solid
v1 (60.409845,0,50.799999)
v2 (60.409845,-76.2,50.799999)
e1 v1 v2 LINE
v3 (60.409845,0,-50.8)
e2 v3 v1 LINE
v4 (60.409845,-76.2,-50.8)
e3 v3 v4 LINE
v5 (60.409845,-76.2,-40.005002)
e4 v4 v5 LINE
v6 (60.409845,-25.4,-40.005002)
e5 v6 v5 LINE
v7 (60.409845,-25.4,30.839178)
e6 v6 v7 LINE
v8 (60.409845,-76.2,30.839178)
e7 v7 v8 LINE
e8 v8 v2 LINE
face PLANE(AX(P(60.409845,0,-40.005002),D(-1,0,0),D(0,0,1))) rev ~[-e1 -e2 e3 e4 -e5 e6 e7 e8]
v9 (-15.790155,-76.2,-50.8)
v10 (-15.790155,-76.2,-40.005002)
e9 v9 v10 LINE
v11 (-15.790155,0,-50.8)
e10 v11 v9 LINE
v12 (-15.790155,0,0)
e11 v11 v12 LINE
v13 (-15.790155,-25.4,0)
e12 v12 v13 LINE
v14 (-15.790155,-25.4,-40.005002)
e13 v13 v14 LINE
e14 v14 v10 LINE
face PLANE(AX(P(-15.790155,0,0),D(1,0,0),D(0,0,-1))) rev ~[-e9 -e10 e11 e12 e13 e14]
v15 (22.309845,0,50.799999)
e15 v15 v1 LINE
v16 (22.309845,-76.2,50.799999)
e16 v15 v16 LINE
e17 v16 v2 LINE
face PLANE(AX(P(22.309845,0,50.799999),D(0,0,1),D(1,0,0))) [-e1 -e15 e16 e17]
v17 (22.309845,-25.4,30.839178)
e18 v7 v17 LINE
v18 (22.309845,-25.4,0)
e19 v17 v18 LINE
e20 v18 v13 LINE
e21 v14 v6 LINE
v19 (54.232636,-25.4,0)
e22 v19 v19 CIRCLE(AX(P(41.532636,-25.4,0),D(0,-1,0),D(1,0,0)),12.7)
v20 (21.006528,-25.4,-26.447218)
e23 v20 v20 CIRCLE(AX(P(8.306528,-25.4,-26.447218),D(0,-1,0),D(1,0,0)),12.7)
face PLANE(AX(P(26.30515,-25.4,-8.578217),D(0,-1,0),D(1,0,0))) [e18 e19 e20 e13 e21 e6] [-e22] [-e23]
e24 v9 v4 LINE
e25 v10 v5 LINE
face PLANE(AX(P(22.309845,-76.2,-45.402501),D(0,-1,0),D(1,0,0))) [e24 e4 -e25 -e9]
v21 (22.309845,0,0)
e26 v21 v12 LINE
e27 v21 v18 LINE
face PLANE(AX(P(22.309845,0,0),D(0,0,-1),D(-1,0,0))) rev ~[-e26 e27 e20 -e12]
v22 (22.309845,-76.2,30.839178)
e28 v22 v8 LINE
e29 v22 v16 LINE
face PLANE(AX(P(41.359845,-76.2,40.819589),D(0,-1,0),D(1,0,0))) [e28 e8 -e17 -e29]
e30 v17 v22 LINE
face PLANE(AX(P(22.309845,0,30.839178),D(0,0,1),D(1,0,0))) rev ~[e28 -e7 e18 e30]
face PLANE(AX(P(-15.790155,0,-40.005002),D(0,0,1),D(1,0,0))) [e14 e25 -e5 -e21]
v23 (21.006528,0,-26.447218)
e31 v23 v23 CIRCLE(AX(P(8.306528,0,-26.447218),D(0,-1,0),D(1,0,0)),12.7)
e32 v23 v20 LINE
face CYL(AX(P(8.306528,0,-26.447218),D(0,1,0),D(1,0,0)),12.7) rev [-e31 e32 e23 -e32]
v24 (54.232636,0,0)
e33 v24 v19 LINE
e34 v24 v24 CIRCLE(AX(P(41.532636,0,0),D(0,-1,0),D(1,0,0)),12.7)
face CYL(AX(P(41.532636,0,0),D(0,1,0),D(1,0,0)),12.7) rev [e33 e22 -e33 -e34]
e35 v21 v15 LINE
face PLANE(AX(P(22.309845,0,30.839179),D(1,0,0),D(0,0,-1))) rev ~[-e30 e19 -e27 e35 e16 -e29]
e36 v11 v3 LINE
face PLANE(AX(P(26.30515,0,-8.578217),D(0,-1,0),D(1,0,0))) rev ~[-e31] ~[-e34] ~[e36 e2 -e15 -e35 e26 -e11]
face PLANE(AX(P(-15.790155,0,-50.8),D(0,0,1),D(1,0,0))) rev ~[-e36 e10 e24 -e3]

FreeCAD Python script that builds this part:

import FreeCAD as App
import Part
import Sketcher
from FreeCAD import Vector
Q = App.Units.Quantity

doc = App.newDocument("Part")
body = doc.addObject("PartDesign::Body", "Body")

# Sketch on XZ plane
sketch1 = body.newObject("Sketcher::SketchObject", "Sketch")
sketch1.AttachmentSupport = (doc.getObject("XZ_Plane"), [""])
sketch1.MapMode = "FlatFace"
sketch1.addGeometry(Part.LineSegment(Vector(60.409845, 30.839179, 0), Vector(22.309845, 30.839179, 0)), False)
sketch1.addGeometry(Part.LineSegment(Vector(22.309845, 30.839179, 0), Vector(22.309845, 0, 0)), False)
sketch1.addGeometry(Part.LineSegment(Vector(22.309845, 0, 0), Vector(-15.790155, 0, 0)), False)
sketch1.addGeometry(Part.LineSegment(Vector(-15.790155, 0, 0), Vector(-15.790155, -40.005002, 0)), False)
sketch1.addGeometry(Part.LineSegment(Vector(-15.790155, -40.005002, 0), Vector(60.409845, -40.005002, 0)), False)
sketch1.addGeometry(Part.LineSegment(Vector(60.409845, -40.005002, 0), Vector(60.409845, 30.839179, 0)), False)
sketch1.addGeometry(Part.Circle(Vector(8.306528, -26.447218, 0), Vector(0, 0, 1), 12.7), False)
sketch1.addGeometry(Part.Circle(Vector(41.532636, 0, 0), Vector(0, 0, 1), 12.7), False)
sketch1.addConstraint(Sketcher.Constraint("Coincident", 0, 2, 1, 1))
sketch1.addConstraint(Sketcher.Constraint("Coincident", 1, 2, 2, 1))
sketch1.addConstraint(Sketcher.Constraint("Coincident", 2, 2, 3, 1))
sketch1.addConstraint(Sketcher.Constraint("Coincident", 3, 2, 4, 1))
sketch1.addConstraint(Sketcher.Constraint("Coincident", 4, 2, 5, 1))
sketch1.addConstraint(Sketcher.Constraint("Coincident", 5, 2, 0, 1))
sketch1.addConstraint(Sketcher.Constraint("Horizontal", 0))
sketch1.addConstraint(Sketcher.Constraint("Vertical", 1))
sketch1.addConstraint(Sketcher.Constraint("Horizontal", 2))
sketch1.addConstraint(Sketcher.Constraint("Vertical", 3))
sketch1.addConstraint(Sketcher.Constraint("Horizontal", 4))
sketch1.addConstraint(Sketcher.Constraint("Vertical", 5))
sketch1.addConstraint(Sketcher.Constraint("Equal", 6, 7))
sketch1.addConstraint(Sketcher.Constraint("PointOnObject", 7, 3, -1))
sketch1.addConstraint(Sketcher.Constraint("PointOnObject", 1, 2, -1))
sketch1.addConstraint(Sketcher.Constraint("Equal", 0, 2))
sketch1.addConstraint(Sketcher.Constraint("Diameter", 6, Q("1 in")))
sketch1.addConstraint(Sketcher.Constraint("DistanceX", 4, 1, 4, 2, Q("3 in")))
sketch1.addConstraint(Sketcher.Constraint("DistanceY", 3, 2, 3, 1, Q("1.5750001 in")))
sketch1.addConstraint(Sketcher.Constraint("DistanceY", 1, 2, 1, 1, 30.839179))
sketch1.addConstraint(Sketcher.Constraint("DistanceX", 0, 2, 7, 3, 19.222791))
sketch1.addConstraint(Sketcher.Constraint("DistanceX", -1, 1, 6, 3, 8.306528))
sketch1.addConstraint(Sketcher.Constraint("DistanceY", 6, 3, -1, 1, 26.447218))
sketch1.addConstraint(Sketcher.Constraint("DistanceX", -1, 1, 7, 3, 41.532636))
pad1 = body.newObject("PartDesign::Pad", "Pad")
pad1.Profile = sketch1
pad1.Length = Q("1 in")

# Sketch on XZ plane
sketch2 = body.newObject("Sketcher::SketchObject", "Sketch001")
sketch2.AttachmentSupport = (doc.getObject("XZ_Plane"), [""])
sketch2.MapMode = "FlatFace"
sketch2.addGeometry(Part.LineSegment(Vector(22.309845, 50.799999, 0), Vector(22.309845, 30.839178, 0)), False)
sketch2.addGeometry(Part.LineSegment(Vector(22.309845, 30.839178, 0), Vector(60.409845, 30.839178, 0)), False)
sketch2.addGeometry(Part.LineSegment(Vector(60.409845, 30.839178, 0), Vector(60.409845, 50.799999, 0)), False)
sketch2.addGeometry(Part.LineSegment(Vector(60.409845, 50.799999, 0), Vector(22.309845, 50.799999, 0)), False)
sketch2.addGeometry(Part.LineSegment(Vector(-15.790155, -40.005002, 0), Vector(-15.790155, -50.8, 0)), False)
sketch2.addGeometry(Part.LineSegment(Vector(-15.790155, -50.8, 0), Vector(60.409845, -50.8, 0)), False)
sketch2.addGeometry(Part.LineSegment(Vector(60.409845, -50.8, 0), Vector(60.409845, -40.005002, 0)), False)
sketch2.addGeometry(Part.LineSegment(Vector(60.409845, -40.005002, 0), Vector(-15.790155, -40.005002, 0)), False)
sketch2.addConstraint(Sketcher.Constraint("Coincident", 0, 2, 1, 1))
sketch2.addConstraint(Sketcher.Constraint("Coincident", 1, 2, 2, 1))
sketch2.addConstraint(Sketcher.Constraint("Coincident", 2, 2, 3, 1))
sketch2.addConstraint(Sketcher.Constraint("Coincident", 3, 2, 0, 1))
sketch2.addConstraint(Sketcher.Constraint("Coincident", 4, 2, 5, 1))
sketch2.addConstraint(Sketcher.Constraint("Coincident", 5, 2, 6, 1))
sketch2.addConstraint(Sketcher.Constraint("Coincident", 6, 2, 7, 1))
sketch2.addConstraint(Sketcher.Constraint("Coincident", 7, 2, 4, 1))
sketch2.addConstraint(Sketcher.Constraint("Vertical", 0))
sketch2.addConstraint(Sketcher.Constraint("Horizontal", 1))
sketch2.addConstraint(Sketcher.Constraint("Vertical", 2))
sketch2.addConstraint(Sketcher.Constraint("Horizontal", 3))
sketch2.addConstraint(Sketcher.Constraint("Vertical", 4))
sketch2.addConstraint(Sketcher.Constraint("Horizontal", 5))
sketch2.addConstraint(Sketcher.Constraint("Vertical", 6))
sketch2.addConstraint(Sketcher.Constraint("Horizontal", 7))
sketch2.addConstraint(Sketcher.Constraint("Symmetric", 2, 2, 5, 2, -1))
sketch2.addConstraint(Sketcher.Constraint("DistanceX", 5, 1, 5, 2, Q("3 in")))
sketch2.addConstraint(Sketcher.Constraint("DistanceX", 1, 1, 1, 2, Q("1.5 in")))
sketch2.addConstraint(Sketcher.Constraint("DistanceY", -1, 1, 2, 2, Q("2 in")))
sketch2.addConstraint(Sketcher.Constraint("DistanceY", 4, 2, 4, 1, Q("0.4249999 in")))
sketch2.addConstraint(Sketcher.Constraint("DistanceY", 0, 2, 0, 1, 19.960821))
sketch2.addConstraint(Sketcher.Constraint("DistanceX", -1, 1, 0, 2, 22.309845))
pad2 = body.newObject("PartDesign::Pad", "Pad001")
pad2.Profile = sketch2
pad2.Length = Q("3 in")

doc.recompute()
